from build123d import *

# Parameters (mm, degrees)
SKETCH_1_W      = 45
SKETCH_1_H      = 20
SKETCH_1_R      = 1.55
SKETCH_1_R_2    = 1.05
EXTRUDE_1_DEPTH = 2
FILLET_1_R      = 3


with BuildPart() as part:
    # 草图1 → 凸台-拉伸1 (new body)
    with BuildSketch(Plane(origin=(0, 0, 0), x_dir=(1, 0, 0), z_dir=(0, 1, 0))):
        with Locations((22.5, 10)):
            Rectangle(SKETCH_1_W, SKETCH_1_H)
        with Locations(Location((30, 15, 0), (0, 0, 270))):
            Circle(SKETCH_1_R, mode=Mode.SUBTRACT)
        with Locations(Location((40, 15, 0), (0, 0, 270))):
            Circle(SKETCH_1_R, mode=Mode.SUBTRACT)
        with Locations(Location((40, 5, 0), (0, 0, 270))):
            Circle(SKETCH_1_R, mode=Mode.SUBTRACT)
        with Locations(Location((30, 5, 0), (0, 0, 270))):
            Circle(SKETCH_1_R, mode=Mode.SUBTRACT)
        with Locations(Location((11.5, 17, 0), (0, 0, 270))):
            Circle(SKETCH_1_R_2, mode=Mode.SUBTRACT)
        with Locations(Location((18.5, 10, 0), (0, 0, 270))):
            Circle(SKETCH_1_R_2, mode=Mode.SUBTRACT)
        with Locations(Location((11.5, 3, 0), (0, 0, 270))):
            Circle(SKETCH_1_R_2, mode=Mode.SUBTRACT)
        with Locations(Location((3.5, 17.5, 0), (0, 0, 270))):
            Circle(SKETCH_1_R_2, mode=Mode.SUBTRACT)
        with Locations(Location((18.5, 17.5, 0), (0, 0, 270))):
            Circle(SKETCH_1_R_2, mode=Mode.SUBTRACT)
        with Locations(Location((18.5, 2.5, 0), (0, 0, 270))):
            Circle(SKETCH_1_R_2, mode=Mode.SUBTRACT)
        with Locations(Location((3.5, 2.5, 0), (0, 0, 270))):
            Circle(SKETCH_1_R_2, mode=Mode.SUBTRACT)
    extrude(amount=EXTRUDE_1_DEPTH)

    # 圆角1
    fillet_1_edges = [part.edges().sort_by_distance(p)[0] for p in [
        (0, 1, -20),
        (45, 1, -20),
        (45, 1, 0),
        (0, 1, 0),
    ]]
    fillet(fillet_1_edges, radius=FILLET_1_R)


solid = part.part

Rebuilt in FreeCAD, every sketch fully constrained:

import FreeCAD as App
import Part
import Sketcher
Q = App.Units.Quantity


def edges_at(feature, points):
    """Names of the edges that pass closest to the given points."""
    edges = feature.Shape.Edges
    near = lambda p: min(range(len(edges)), key=lambda i: edges[i].distToShape(Part.Vertex(*p))[0])
    return sorted({f"Edge{near(p) + 1}" for p in points})

doc = App.newDocument("Part")
params = doc.addObject("Spreadsheet::Sheet", "Params")
for row, (alias, value) in enumerate([
    ("sketch1_diameter", "2.1 mm"),
    ("sketch1_diameter2", "3.1 mm"),
    ("sketch1_width", "45 mm"),
    ("sketch1_height", "20 mm"),
    ("pad1_length", "2 mm"),
    ("fillet_radius", "3 mm"),
], start=1):
    params.set(f"A{row}", alias)
    params.set(f"B{row}", "=" + value)
    params.setAlias(f"B{row}", alias)

body = doc.addObject("PartDesign::Body", "Body")

# Sketch on XZ plane
sketch1 = body.newObject("Sketcher::SketchObject", "Sketch")
sketch1.AttachmentSupport = (doc.getObject("XZ_Plane"), [""])
sketch1.MapMode = "FlatFace"
sketch1.addGeometry(Part.LineSegment(App.Vector(0, -20, 0), App.Vector(0, 0, 0)), False)
sketch1.addGeometry(Part.LineSegment(App.Vector(0, 0, 0), App.Vector(45, 0, 0)), False)
sketch1.addGeometry(Part.LineSegment(App.Vector(45, 0, 0), App.Vector(45, -20, 0)), False)
sketch1.addGeometry(Part.LineSegment(App.Vector(45, -20, 0), App.Vector(0, -20, 0)), False)
sketch1.addGeometry(Part.Circle(App.Vector(3.5, -2.5, 0), App.Vector(0, 0, 1), 1.05), False)
sketch1.addGeometry(Part.Circle(App.Vector(11.5, -3, 0), App.Vector(0, 0, 1), 1.05), False)
sketch1.addGeometry(Part.Circle(App.Vector(18.5, -2.5, 0), App.Vector(0, 0, 1), 1.05), False)
sketch1.addGeometry(Part.Circle(App.Vector(30, -5, 0), App.Vector(0, 0, 1), 1.55), False)
sketch1.addGeometry(Part.Circle(App.Vector(40, -5, 0), App.Vector(0, 0, 1), 1.55), False)
sketch1.addGeometry(Part.Circle(App.Vector(18.5, -10, 0), App.Vector(0, 0, 1), 1.05), False)
sketch1.addGeometry(Part.Circle(App.Vector(3.5, -17.5, 0), App.Vector(0, 0, 1), 1.05), False)
sketch1.addGeometry(Part.Circle(App.Vector(11.5, -17, 0), App.Vector(0, 0, 1), 1.05), False)
sketch1.addGeometry(Part.Circle(App.Vector(18.5, -17.5, 0), App.Vector(0, 0, 1), 1.05), False)
sketch1.addGeometry(Part.Circle(App.Vector(30, -15, 0), App.Vector(0, 0, 1), 1.55), False)
sketch1.addGeometry(Part.Circle(App.Vector(40, -15, 0), App.Vector(0, 0, 1), 1.55), False)
sketch1.addConstraint(Sketcher.Constraint("Coincident", 0, 2, 1, 1))
sketch1.addConstraint(Sketcher.Constraint("Coincident", 1, 2, 2, 1))
sketch1.addConstraint(Sketcher.Constraint("Coincident", 2, 2, 3, 1))
sketch1.addConstraint(Sketcher.Constraint("Coincident", 3, 2, 0, 1))
sketch1.addConstraint(Sketcher.Constraint("Vertical", 0))
sketch1.addConstraint(Sketcher.Constraint("Horizontal", 1))
sketch1.addConstraint(Sketcher.Constraint("Vertical", 2))
sketch1.addConstraint(Sketcher.Constraint("Horizontal", 3))
sketch1.addConstraint(Sketcher.Constraint("Coincident", 0, 2, -1, 1))
sketch1.addConstraint(Sketcher.Constraint("Equal", 4, 5))
sketch1.addConstraint(Sketcher.Constraint("Equal", 5, 6))
sketch1.addConstraint(Sketcher.Constraint("Equal", 7, 8))
sketch1.addConstraint(Sketcher.Constraint("Equal", 6, 9))
sketch1.addConstraint(Sketcher.Constraint("Equal", 9, 10))
sketch1.addConstraint(Sketcher.Constraint("Equal", 10, 11))
sketch1.addConstraint(Sketcher.Constraint("Equal", 11, 12))
sketch1.addConstraint(Sketcher.Constraint("Equal", 8, 13))
sketch1.addConstraint(Sketcher.Constraint("Equal", 13, 14))
sketch1.addConstraint(Sketcher.Constraint("Horizontal", 4, 3, 6, 3))
sketch1.addConstraint(Sketcher.Constraint("Horizontal", 7, 3, 8, 3))
sketch1.addConstraint(Sketcher.Constraint("Horizontal", 10, 3, 12, 3))
sketch1.addConstraint(Sketcher.Constraint("Horizontal", 13, 3, 14, 3))
sketch1.addConstraint(Sketcher.Constraint("Vertical", 6, 3, 9, 3))
sketch1.addConstraint(Sketcher.Constraint("Vertical", 4, 3, 10, 3))
sketch1.addConstraint(Sketcher.Constraint("Vertical", 5, 3, 11, 3))
sketch1.addConstraint(Sketcher.Constraint("Vertical", 9, 3, 12, 3))
sketch1.addConstraint(Sketcher.Constraint("Vertical", 7, 3, 13, 3))
sketch1.addConstraint(Sketcher.Constraint("Vertical", 8, 3, 14, 3))
sketch1.addConstraint(Sketcher.Constraint("Diameter", 4, Q("2.1 mm")))
sketch1.addConstraint(Sketcher.Constraint("Diameter", 7, Q("3.1 mm")))
sketch1.addConstraint(Sketcher.Constraint("DistanceX", 1, 1, 1, 2, Q("45 mm")))
sketch1.addConstraint(Sketcher.Constraint("DistanceY", 0, 1, 0, 2, Q("20 mm")))
sketch1.addConstraint(Sketcher.Constraint("DistanceY", 5, 3, -1, 1, Q("3 mm")))
sketch1.addConstraint(Sketcher.Constraint("DistanceX", -1, 1, 7, 3, Q("30 mm")))
sketch1.addConstraint(Sketcher.Constraint("DistanceY", 7, 3, -1, 1, Q("5 mm")))
sketch1.addConstraint(Sketcher.Constraint("DistanceX", -1, 1, 8, 3, Q("40 mm")))
sketch1.addConstraint(Sketcher.Constraint("DistanceY", 9, 3, -1, 1, Q("10 mm")))
sketch1.addConstraint(Sketcher.Constraint("DistanceY", 11, 3, -1, 1, Q("17 mm")))
sketch1.addConstraint(Sketcher.Constraint("DistanceY", 13, 3, -1, 1, Q("15 mm")))
sketch1.addConstraint(Sketcher.Constraint("DistanceX", 4, 3, 5, 3, Q("8 mm")))
sketch1.addConstraint(Sketcher.Constraint("DistanceX", 5, 3, 6, 3, Q("7 mm")))
sketch1.addConstraint(Sketcher.Constraint("DistanceY", 10, 3, 4, 3, Q("15 mm")))
sketch1.addConstraint(Sketcher.Constraint("DistanceX", -1, 1, 4, 3, Q("3.5 mm")))
sketch1.addConstraint(Sketcher.Constraint("DistanceY", 4, 3, -1, 1, Q("2.5 mm")))
sketch1.setExpression("Constraints[28]", "Params.sketch1_diameter")
sketch1.setExpression("Constraints[29]", "Params.sketch1_diameter2")
sketch1.setExpression("Constraints[30]", "Params.sketch1_width")
sketch1.setExpression("Constraints[31]", "Params.sketch1_height")
pad1 = body.newObject("PartDesign::Pad", "Pad")
pad1.Profile = sketch1
pad1.setExpression("Length", "Params.pad1_length")
pad1.Reversed = True
doc.recompute()

fillet = body.newObject("PartDesign::Fillet", "Fillet")
fillet.Base = (pad1, edges_at(pad1, [
    (0, 1, -20),
    (45, 1, -20),
    (45, 1, 0),
    (0, 1, 0),
]))
fillet.setExpression("Radius", "Params.fillet_radius")

doc.recompute()
